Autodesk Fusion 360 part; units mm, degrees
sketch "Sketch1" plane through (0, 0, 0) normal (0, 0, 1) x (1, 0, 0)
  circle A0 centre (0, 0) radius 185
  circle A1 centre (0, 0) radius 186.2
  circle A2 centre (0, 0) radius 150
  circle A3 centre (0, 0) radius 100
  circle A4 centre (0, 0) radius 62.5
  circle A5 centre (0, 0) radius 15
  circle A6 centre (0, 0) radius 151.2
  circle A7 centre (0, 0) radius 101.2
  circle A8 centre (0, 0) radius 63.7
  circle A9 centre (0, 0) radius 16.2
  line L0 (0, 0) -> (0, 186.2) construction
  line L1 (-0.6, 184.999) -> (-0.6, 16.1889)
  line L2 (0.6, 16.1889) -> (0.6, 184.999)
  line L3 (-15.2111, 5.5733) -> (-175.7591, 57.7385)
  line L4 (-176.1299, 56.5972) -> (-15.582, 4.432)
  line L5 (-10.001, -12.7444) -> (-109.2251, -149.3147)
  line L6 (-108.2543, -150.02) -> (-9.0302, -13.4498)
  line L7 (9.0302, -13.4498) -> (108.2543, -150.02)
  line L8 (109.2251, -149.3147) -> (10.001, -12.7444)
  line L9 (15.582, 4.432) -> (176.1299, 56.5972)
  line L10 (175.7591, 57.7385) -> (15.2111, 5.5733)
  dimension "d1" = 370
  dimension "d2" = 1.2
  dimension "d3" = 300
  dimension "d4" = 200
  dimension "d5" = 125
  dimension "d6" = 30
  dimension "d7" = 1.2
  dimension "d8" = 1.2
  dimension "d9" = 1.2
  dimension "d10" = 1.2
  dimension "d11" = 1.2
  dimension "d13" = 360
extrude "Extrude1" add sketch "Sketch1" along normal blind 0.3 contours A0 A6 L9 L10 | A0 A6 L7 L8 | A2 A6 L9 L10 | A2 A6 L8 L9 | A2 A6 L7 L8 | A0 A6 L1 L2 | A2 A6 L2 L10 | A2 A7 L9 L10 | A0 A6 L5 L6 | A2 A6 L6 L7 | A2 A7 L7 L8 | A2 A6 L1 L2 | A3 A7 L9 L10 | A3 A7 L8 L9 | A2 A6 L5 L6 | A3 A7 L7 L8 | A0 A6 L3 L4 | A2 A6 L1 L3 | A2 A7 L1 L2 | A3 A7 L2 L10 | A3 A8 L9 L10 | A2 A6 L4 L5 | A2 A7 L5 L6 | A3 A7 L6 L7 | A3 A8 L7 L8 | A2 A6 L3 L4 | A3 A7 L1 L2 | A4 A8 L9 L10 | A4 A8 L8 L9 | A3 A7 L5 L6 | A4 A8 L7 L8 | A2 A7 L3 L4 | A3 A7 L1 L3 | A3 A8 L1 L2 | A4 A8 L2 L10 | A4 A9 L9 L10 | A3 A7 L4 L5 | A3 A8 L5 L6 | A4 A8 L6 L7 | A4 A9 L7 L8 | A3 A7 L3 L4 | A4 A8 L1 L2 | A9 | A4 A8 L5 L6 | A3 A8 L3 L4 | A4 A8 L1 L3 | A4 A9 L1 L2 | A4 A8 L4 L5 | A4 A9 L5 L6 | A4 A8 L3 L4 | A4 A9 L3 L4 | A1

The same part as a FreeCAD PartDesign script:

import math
import FreeCAD as App
import Part
import Sketcher
from FreeCAD import Vector
Q = App.Units.Quantity

doc = App.newDocument("Part")
body = doc.addObject("PartDesign::Body", "Body")

sketch1 = body.newObject("Sketcher::SketchObject", "Sketch")
sketch1.AttachmentSupport = (doc.getObject("XY_Plane"), [""])
sketch1.MapMode = "FlatFace"
sketch1.addGeometry([
    Part.Circle(Vector(0, 0, 0), Vector(0, 0, 1), 186.2),
    Part.LineSegment(Vector(143.984024, 46.152367, 0), Vector(176.1299, 56.5972, 0)),
    Part.ArcOfCircle(Part.Circle(Vector(0, 0, 0), Vector(0, 0, 1), 185), math.radians(-53.814181), math.radians(17.814177)),
    Part.LineSegment(Vector(109.2251, -149.3147, 0), Vector(89.357831, -121.969742, 0)),
    Part.ArcOfCircle(Part.Circle(Vector(0, 0, 0), Vector(0, 0, 1), 151.2), math.radians(-53.77264), math.radians(17.772635)),
    Part.LineSegment(Vector(175.7591, 57.7385, 0), Vector(143.613194, 47.293663, 0)),
    Part.ArcOfCircle(Part.Circle(Vector(0, 0, 0), Vector(0, 0, 1), 151.2), math.radians(18.227376), math.radians(89.772635)),
    Part.LineSegment(Vector(0.6, 151.19881, 0), Vector(0.6, 184.999, 0)),
    Part.ArcOfCircle(Part.Circle(Vector(0, 0, 0), Vector(0, 0, 1), 185), math.radians(18.185833), math.radians(89.814175)),
    Part.ArcOfCircle(Part.Circle(Vector(0, 0, 0), Vector(0, 0, 1), 185), math.radians(90.185825), math.radians(161.814167)),
    Part.LineSegment(Vector(-0.6, 184.999, 0), Vector(-0.6, 151.19881, 0)),
    Part.ArcOfCircle(Part.Circle(Vector(0, 0, 0), Vector(0, 0, 1), 151.2), math.radians(90.227365), math.radians(161.772624)),
    Part.LineSegment(Vector(-143.613194, 47.293663, 0), Vector(-175.7591, 57.7385, 0)),
    Part.ArcOfCircle(Part.Circle(Vector(0, 0, 0), Vector(0, 0, 1), 185), math.radians(162.185823), math.radians(233.814181)),
    Part.LineSegment(Vector(-176.1299, 56.5972, 0), Vector(-143.984024, 46.152367, 0)),
    Part.ArcOfCircle(Part.Circle(Vector(0, 0, 0), Vector(0, 0, 1), 151.2), math.radians(162.227365), math.radians(233.77264)),
    Part.LineSegment(Vector(-89.357831, -121.969742, 0), Vector(-109.2251, -149.3147, 0)),
    Part.ArcOfCircle(Part.Circle(Vector(0, 0, 0), Vector(0, 0, 1), 185), math.radians(-125.814183), math.radians(-54.185817)),
    Part.LineSegment(Vector(-108.2543, -150.02, 0), Vector(-88.387035, -122.675067, 0)),
    Part.ArcOfCircle(Part.Circle(Vector(0, 0, 0), Vector(0, 0, 1), 151.2), math.radians(-125.772642), math.radians(-54.227358)),
    Part.LineSegment(Vector(88.387035, -122.675067, 0), Vector(108.2543, -150.02, 0)),
    Part.LineSegment(Vector(88.652484, -120.998914, 0), Vector(59.968229, -81.518412, 0)),
    Part.ArcOfCircle(Part.Circle(Vector(0, 0, 0), Vector(0, 0, 1), 101.2), math.radians(-53.660302), math.radians(17.660295)),
    Part.LineSegment(Vector(96.430641, 30.701328, 0), Vector(142.842747, 45.781543, 0)),
    Part.ArcOfCircle(Part.Circle(Vector(0, 0, 0), Vector(0, 0, 1), 150), math.radians(-53.770821), math.radians(17.770816)),
    Part.LineSegment(Vector(142.471917, 46.92284, 0), Vector(96.059808, 31.842634, 0)),
    Part.ArcOfCircle(Part.Circle(Vector(0, 0, 0), Vector(0, 0, 1), 101.2), math.radians(18.339718), math.radians(89.6603)),
    Part.LineSegment(Vector(0.6, 101.198221, 0), Vector(0.6, 149.9988, 0)),
    Part.ArcOfCircle(Part.Circle(Vector(0, 0, 0), Vector(0, 0, 1), 150), math.radians(18.229195), math.radians(89.770816)),
    Part.LineSegment(Vector(58.997418, -82.223747, 0), Vector(87.681687, -121.704239, 0)),
    Part.ArcOfCircle(Part.Circle(Vector(0, 0, 0), Vector(0, 0, 1), 150), math.radians(-125.770823), math.radians(-54.229177)),
    Part.LineSegment(Vector(-87.681687, -121.704239, 0), Vector(-58.997418, -82.223747, 0)),
    Part.ArcOfCircle(Part.Circle(Vector(0, 0, 0), Vector(0, 0, 1), 101.2), math.radians(-125.660304), math.radians(-54.339696)),
    Part.LineSegment(Vector(59.262874, -80.547574, 0), Vector(37.925671, -51.179424, 0)),
    Part.ArcOfCircle(Part.Circle(Vector(0, 0, 0), Vector(0, 0, 1), 63.7), math.radians(-53.460313), math.radians(17.460302)),
    Part.LineSegment(Vector(60.765027, 19.112862, 0), Vector(95.289352, 30.330501, 0)),
    Part.ArcOfCircle(Part.Circle(Vector(0, 0, 0), Vector(0, 0, 1), 100), math.radians(-53.656225), math.radians(17.656218)),
    Part.LineSegment(Vector(94.91852, 31.471807, 0), Vector(60.394192, 20.254174, 0)),
    Part.ArcOfCircle(Part.Circle(Vector(0, 0, 0), Vector(0, 0, 1), 63.7), math.radians(18.539715), math.radians(89.460314)),
    Part.LineSegment(Vector(0.6, 63.697174, 0), Vector(0.6, 99.9982, 0)),
    Part.ArcOfCircle(Part.Circle(Vector(0, 0, 0), Vector(0, 0, 1), 100), math.radians(18.343795), math.radians(89.656223)),
    Part.ArcOfCircle(Part.Circle(Vector(0, 0, 0), Vector(0, 0, 1), 150), math.radians(90.229184), math.radians(161.770805)),
    Part.LineSegment(Vector(-0.6, 149.9988, 0), Vector(-0.6, 101.198221, 0)),
    Part.ArcOfCircle(Part.Circle(Vector(0, 0, 0), Vector(0, 0, 1), 101.2), math.radians(90.3397), math.radians(161.660282)),
    Part.LineSegment(Vector(-96.059808, 31.842634, 0), Vector(-142.471917, 46.92284, 0)),
    Part.LineSegment(Vector(-142.842747, 45.781543, 0), Vector(-96.430641, 30.701328, 0)),
    Part.ArcOfCircle(Part.Circle(Vector(0, 0, 0), Vector(0, 0, 1), 101.2), math.radians(162.339705), math.radians(233.660302)),
    Part.LineSegment(Vector(-59.968229, -81.518412, 0), Vector(-88.652484, -120.998914, 0)),
    Part.ArcOfCircle(Part.Circle(Vector(0, 0, 0), Vector(0, 0, 1), 150), math.radians(162.229184), math.radians(233.770821)),
    Part.LineSegment(Vector(36.95485, -51.884767, 0), Vector(58.292063, -81.25291, 0)),
    Part.ArcOfCircle(Part.Circle(Vector(0, 0, 0), Vector(0, 0, 1), 100), math.radians(-125.656228), math.radians(-54.343772)),
    Part.LineSegment(Vector(-58.292063, -81.25291, 0), Vector(-36.95485, -51.884767, 0)),
    Part.ArcOfCircle(Part.Circle(Vector(0, 0, 0), Vector(0, 0, 1), 63.7), math.radians(-125.460315), math.radians(-54.539685)),
    Part.LineSegment(Vector(37.220297, -50.20856, 0), Vector(10.001, -12.7444, 0)),
    Part.ArcOfCircle(Part.Circle(Vector(0, 0, 0), Vector(0, 0, 1), 16.2), math.radians(-51.877417), math.radians(15.877382)),
    Part.LineSegment(Vector(15.582, 4.432, 0), Vector(59.623707, 18.742025, 0)),
    Part.ArcOfCircle(Part.Circle(Vector(0, 0, 0), Vector(0, 0, 1), 62.5), math.radians(-53.449951), math.radians(17.449939)),
    Part.LineSegment(Vector(59.252872, 19.883337, 0), Vector(15.2111, 5.5733, 0)),
    Part.ArcOfCircle(Part.Circle(Vector(0, 0, 0), Vector(0, 0, 1), 16.2), math.radians(20.122678), math.radians(87.877451)),
    Part.LineSegment(Vector(0.6, 16.1889, 0), Vector(0.6, 62.49712, 0)),
    Part.ArcOfCircle(Part.Circle(Vector(0, 0, 0), Vector(0, 0, 1), 62.5), math.radians(18.550078), math.radians(89.449952)),
    Part.ArcOfCircle(Part.Circle(Vector(0, 0, 0), Vector(0, 0, 1), 100), math.radians(90.343777), math.radians(161.656205)),
    Part.LineSegment(Vector(-0.6, 99.9982, 0), Vector(-0.6, 63.697174, 0)),
    Part.ArcOfCircle(Part.Circle(Vector(0, 0, 0), Vector(0, 0, 1), 63.7), math.radians(90.539686), math.radians(161.460285)),
    Part.LineSegment(Vector(-60.394192, 20.254174, 0), Vector(-94.91852, 31.471807, 0)),
    Part.LineSegment(Vector(-95.289352, 30.330501, 0), Vector(-60.765027, 19.112862, 0)),
    Part.ArcOfCircle(Part.Circle(Vector(0, 0, 0), Vector(0, 0, 1), 63.7), math.radians(162.539698), math.radians(233.460313)),
    Part.LineSegment(Vector(-37.925671, -51.179424, 0), Vector(-59.262874, -80.547574, 0)),
    Part.ArcOfCircle(Part.Circle(Vector(0, 0, 0), Vector(0, 0, 1), 100), math.radians(162.343782), math.radians(233.656225)),
    Part.ArcOfCircle(Part.Circle(Vector(0, 0, 0), Vector(0, 0, 1), 16.2), math.radians(-123.877424), math.radians(-56.122576)),
    Part.LineSegment(Vector(9.0302, -13.4498, 0), Vector(36.249476, -50.913903, 0)),
    Part.ArcOfCircle(Part.Circle(Vector(0, 0, 0), Vector(0, 0, 1), 62.5), math.radians(-125.449952), math.radians(-54.550048)),
    Part.LineSegment(Vector(-36.249476, -50.913903, 0), Vector(-9.0302, -13.4498, 0)),
    Part.ArcOfCircle(Part.Circle(Vector(0, 0, 0), Vector(0, 0, 1), 16.2), math.radians(164.122618), math.radians(231.877417)),
    Part.LineSegment(Vector(-10.001, -12.7444, 0), Vector(-37.220297, -50.20856, 0)),
    Part.ArcOfCircle(Part.Circle(Vector(0, 0, 0), Vector(0, 0, 1), 62.5), math.radians(162.550061), math.radians(233.449951)),
    Part.LineSegment(Vector(-59.623707, 18.742025, 0), Vector(-15.582, 4.432, 0)),
    Part.ArcOfCircle(Part.Circle(Vector(0, 0, 0), Vector(0, 0, 1), 16.2), math.radians(92.122549), math.radians(159.877322)),
    Part.LineSegment(Vector(-15.2111, 5.5733, 0), Vector(-59.252872, 19.883337, 0)),
    Part.ArcOfCircle(Part.Circle(Vector(0, 0, 0), Vector(0, 0, 1), 62.5), math.radians(90.550048), math.radians(161.449922)),
    Part.LineSegment(Vector(-0.6, 62.49712, 0), Vector(-0.6, 16.1889, 0)),
    Part.Circle(Vector(0, 0, 0), Vector(0, 0, 1), 15),
], False)
sketch1.addConstraint([
    Sketcher.Constraint("Coincident", 1, 2, 2, 2),
    Sketcher.Constraint("Coincident", 2, 1, 3, 1),
    Sketcher.Constraint("Coincident", 3, 2, 4, 1),
    Sketcher.Constraint("Coincident", 4, 2, 1, 1),
    Sketcher.Constraint("Coincident", 5, 2, 6, 1),
    Sketcher.Constraint("Coincident", 6, 2, 7, 1),
    Sketcher.Constraint("Coincident", 7, 2, 8, 2),
    Sketcher.Constraint("Coincident", 8, 1, 5, 1),
    Sketcher.Constraint("Coincident", 9, 1, 10, 1),
    Sketcher.Constraint("Coincident", 10, 2, 11, 1),
    Sketcher.Constraint("Coincident", 11, 2, 12, 1),
    Sketcher.Constraint("Coincident", 12, 2, 9, 2),
    Sketcher.Constraint("Coincident", 13, 1, 14, 1),
    Sketcher.Constraint("Coincident", 14, 2, 15, 1),
    Sketcher.Constraint("Coincident", 15, 2, 16, 1),
    Sketcher.Constraint("Coincident", 16, 2, 13, 2),
    Sketcher.Constraint("Coincident", 17, 1, 18, 1),
    Sketcher.Constraint("Coincident", 18, 2, 19, 1),
    Sketcher.Constraint("Coincident", 19, 2, 20, 1),
    Sketcher.Constraint("Coincident", 20, 2, 17, 2),
    Sketcher.Constraint("Coincident", 21, 2, 22, 1),
    Sketcher.Constraint("Coincident", 22, 2, 23, 1),
    Sketcher.Constraint("Coincident", 23, 2, 24, 2),
    Sketcher.Constraint("Coincident", 24, 1, 21, 1),
    Sketcher.Constraint("Coincident", 25, 2, 26, 1),
    Sketcher.Constraint("Coincident", 26, 2, 27, 1),
    Sketcher.Constraint("Coincident", 27, 2, 28, 2),
    Sketcher.Constraint("Coincident", 28, 1, 25, 1),
    Sketcher.Constraint("Coincident", 29, 2, 30, 2),
    Sketcher.Constraint("Coincident", 30, 1, 31, 1),
    Sketcher.Constraint("Coincident", 31, 2, 32, 1),
    Sketcher.Constraint("Coincident", 32, 2, 29, 1),
    Sketcher.Constraint("Coincident", 33, 2, 34, 1),
    Sketcher.Constraint("Coincident", 34, 2, 35, 1),
    Sketcher.Constraint("Coincident", 35, 2, 36, 2),
    Sketcher.Constraint("Coincident", 36, 1, 33, 1),
    Sketcher.Constraint("Coincident", 37, 2, 38, 1),
    Sketcher.Constraint("Coincident", 38, 2, 39, 1),
    Sketcher.Constraint("Coincident", 39, 2, 40, 2),
    Sketcher.Constraint("Coincident", 40, 1, 37, 1),
    Sketcher.Constraint("Coincident", 41, 1, 42, 1),
    Sketcher.Constraint("Coincident", 42, 2, 43, 1),
    Sketcher.Constraint("Coincident", 43, 2, 44, 1),
    Sketcher.Constraint("Coincident", 44, 2, 41, 2),
    Sketcher.Constraint("Coincident", 45, 2, 46, 1),
    Sketcher.Constraint("Coincident", 46, 2, 47, 1),
    Sketcher.Constraint("Coincident", 47, 2, 48, 2),
    Sketcher.Constraint("Coincident", 48, 1, 45, 1),
    Sketcher.Constraint("Coincident", 49, 2, 50, 2),
    Sketcher.Constraint("Coincident", 50, 1, 51, 1),
    Sketcher.Constraint("Coincident", 51, 2, 52, 1),
    Sketcher.Constraint("Coincident", 52, 2, 49, 1),
    Sketcher.Constraint("Coincident", 53, 2, 54, 1),
    Sketcher.Constraint("Coincident", 54, 2, 55, 1),
    Sketcher.Constraint("Coincident", 55, 2, 56, 2),
    Sketcher.Constraint("Coincident", 56, 1, 53, 1),
    Sketcher.Constraint("Coincident", 57, 2, 58, 1),
    Sketcher.Constraint("Coincident", 58, 2, 59, 1),
    Sketcher.Constraint("Coincident", 59, 2, 60, 2),
    Sketcher.Constraint("Coincident", 60, 1, 57, 1),
    Sketcher.Constraint("Coincident", 61, 1, 62, 1),
    Sketcher.Constraint("Coincident", 62, 2, 63, 1),
    Sketcher.Constraint("Coincident", 63, 2, 64, 1),
    Sketcher.Constraint("Coincident", 64, 2, 61, 2),
    Sketcher.Constraint("Coincident", 65, 2, 66, 1),
    Sketcher.Constraint("Coincident", 66, 2, 67, 1),
    Sketcher.Constraint("Coincident", 67, 2, 68, 2),
    Sketcher.Constraint("Coincident", 68, 1, 65, 1),
    Sketcher.Constraint("Coincident", 69, 2, 70, 1),
    Sketcher.Constraint("Coincident", 70, 2, 71, 2),
    Sketcher.Constraint("Coincident", 71, 1, 72, 1),
    Sketcher.Constraint("Coincident", 72, 2, 69, 1),
    Sketcher.Constraint("Coincident", 73, 2, 74, 1),
    Sketcher.Constraint("Coincident", 74, 2, 75, 2),
    Sketcher.Constraint("Coincident", 75, 1, 76, 1),
    Sketcher.Constraint("Coincident", 76, 2, 73, 1),
    Sketcher.Constraint("Coincident", 77, 2, 78, 1),
    Sketcher.Constraint("Coincident", 78, 2, 79, 2),
    Sketcher.Constraint("Coincident", 79, 1, 80, 1),
    Sketcher.Constraint("Coincident", 80, 2, 77, 1),
    Sketcher.Constraint("Vertical", 7),
    Sketcher.Constraint("Vertical", 10),
    Sketcher.Constraint("Vertical", 27),
    Sketcher.Constraint("Vertical", 39),
    Sketcher.Constraint("Vertical", 42),
    Sketcher.Constraint("Vertical", 59),
    Sketcher.Constraint("Vertical", 62),
    Sketcher.Constraint("Vertical", 80),
    Sketcher.Constraint("Coincident", 0, 3, -1, 1),
    Sketcher.Constraint("Coincident", 2, 3, -1, 1),
    Sketcher.Constraint("Coincident", 4, 3, -1, 1),
    Sketcher.Constraint("Coincident", 6, 3, -1, 1),
    Sketcher.Constraint("Coincident", 8, 3, -1, 1),
    Sketcher.Constraint("Coincident", 9, 3, -1, 1),
    Sketcher.Constraint("Coincident", 11, 3, -1, 1),
    Sketcher.Constraint("Coincident", 13, 3, -1, 1),
    Sketcher.Constraint("Coincident", 15, 3, -1, 1),
    Sketcher.Constraint("Coincident", 17, 3, -1, 1),
    Sketcher.Constraint("Coincident", 19, 3, -1, 1),
    Sketcher.Constraint("Coincident", 22, 3, -1, 1),
    Sketcher.Constraint("Coincident", 24, 3, -1, 1),
    Sketcher.Constraint("Coincident", 26, 3, -1, 1),
    Sketcher.Constraint("Coincident", 28, 3, -1, 1),
    Sketcher.Constraint("Coincident", 30, 3, -1, 1),
    Sketcher.Constraint("Coincident", 32, 3, -1, 1),
    Sketcher.Constraint("Coincident", 34, 3, -1, 1),
    Sketcher.Constraint("Coincident", 36, 3, -1, 1),
    Sketcher.Constraint("Coincident", 38, 3, -1, 1),
    Sketcher.Constraint("Coincident", 40, 3, -1, 1),
    Sketcher.Constraint("Coincident", 41, 3, -1, 1),
    Sketcher.Constraint("Coincident", 43, 3, -1, 1),
    Sketcher.Constraint("Coincident", 46, 3, -1, 1),
    Sketcher.Constraint("Coincident", 48, 3, -1, 1),
    Sketcher.Constraint("Coincident", 50, 3, -1, 1),
    Sketcher.Constraint("Coincident", 52, 3, -1, 1),
    Sketcher.Constraint("Coincident", 54, 3, -1, 1),
    Sketcher.Constraint("Coincident", 56, 3, -1, 1),
    Sketcher.Constraint("Coincident", 58, 3, -1, 1),
    Sketcher.Constraint("Coincident", 60, 3, -1, 1),
    Sketcher.Constraint("Coincident", 61, 3, -1, 1),
    Sketcher.Constraint("Coincident", 63, 3, -1, 1),
    Sketcher.Constraint("Coincident", 66, 3, -1, 1),
    Sketcher.Constraint("Coincident", 68, 3, -1, 1),
    Sketcher.Constraint("Coincident", 69, 3, -1, 1),
    Sketcher.Constraint("Coincident", 71, 3, -1, 1),
    Sketcher.Constraint("Coincident", 73, 3, -1, 1),
    Sketcher.Constraint("Coincident", 75, 3, -1, 1),
    Sketcher.Constraint("Coincident", 77, 3, -1, 1),
    Sketcher.Constraint("Coincident", 79, 3, -1, 1),
    Sketcher.Constraint("Coincident", 81, 3, -1, 1),
    Sketcher.Constraint("Equal", 4, 6),
    Sketcher.Constraint("Equal", 2, 8),
    Sketcher.Constraint("Equal", 8, 9),
    Sketcher.Constraint("Equal", 6, 11),
    Sketcher.Constraint("Equal", 9, 13),
    Sketcher.Constraint("Equal", 11, 15),
    Sketcher.Constraint("Equal", 13, 17),
    Sketcher.Constraint("Equal", 15, 19),
    Sketcher.Constraint("Equal", 22, 26),
    Sketcher.Constraint("Equal", 24, 28),
    Sketcher.Constraint("Equal", 28, 30),
    Sketcher.Constraint("Equal", 26, 32),
    Sketcher.Constraint("Equal", 34, 38),
    Sketcher.Constraint("Equal", 36, 40),
    Sketcher.Constraint("Equal", 30, 41),
    Sketcher.Constraint("Equal", 32, 43),
    Sketcher.Constraint("Equal", 43, 46),
    Sketcher.Constraint("Equal", 41, 48),
    Sketcher.Constraint("Equal", 40, 50),
    Sketcher.Constraint("Equal", 38, 52),
    Sketcher.Constraint("Equal", 54, 58),
    Sketcher.Constraint("Equal", 56, 60),
    Sketcher.Constraint("Equal", 50, 61),
    Sketcher.Constraint("Equal", 52, 63),
    Sketcher.Constraint("Equal", 63, 66),
    Sketcher.Constraint("Equal", 61, 68),
    Sketcher.Constraint("Equal", 58, 69),
    Sketcher.Constraint("Equal", 60, 71),
    Sketcher.Constraint("Equal", 69, 73),
    Sketcher.Constraint("Equal", 71, 75),
    Sketcher.Constraint("Equal", 73, 77),
    Sketcher.Constraint("Equal", 75, 79),
    Sketcher.Constraint("Parallel", 1, 5),
    Sketcher.Constraint("Parallel", 12, 14),
    Sketcher.Constraint("Parallel", 16, 18),
    Sketcher.Constraint("Parallel", 3, 20),
    Sketcher.Constraint("Parallel", 20, 21),
    Sketcher.Constraint("Parallel", 5, 23),
    Sketcher.Constraint("Parallel", 23, 25),
    Sketcher.Constraint("Parallel", 21, 29),
    Sketcher.Constraint("Parallel", 18, 31),
    Sketcher.Constraint("Parallel", 29, 33),
    Sketcher.Constraint("Parallel", 25, 35),
    Sketcher.Constraint("Parallel", 35, 37),
    Sketcher.Constraint("Parallel", 14, 44),
    Sketcher.Constraint("Parallel", 44, 45),
    Sketcher.Constraint("Parallel", 31, 47),
    Sketcher.Constraint("Parallel", 33, 49),
    Sketcher.Constraint("Parallel", 47, 51),
    Sketcher.Constraint("Parallel", 49, 53),
    Sketcher.Constraint("Parallel", 37, 55),
    Sketcher.Constraint("Parallel", 55, 57),
    Sketcher.Constraint("Parallel", 45, 64),
    Sketcher.Constraint("Parallel", 64, 65),
    Sketcher.Constraint("Parallel", 51, 67),
    Sketcher.Constraint("Parallel", 53, 70),
    Sketcher.Constraint("Parallel", 67, 72),
    Sketcher.Constraint("Parallel", 72, 74),
    Sketcher.Constraint("Parallel", 65, 76),
    Sketcher.Constraint("Parallel", 76, 78),
    Sketcher.Constraint("Horizontal", 6, 2, 10, 2),
    Sketcher.Constraint("Horizontal", 5, 2, 11, 2),
    Sketcher.Constraint("Horizontal", 8, 1, 12, 2),
    Sketcher.Constraint("Horizontal", 1, 2, 13, 1),
    Sketcher.Constraint("Horizontal", 3, 2, 15, 2),
    Sketcher.Constraint("Horizontal", 2, 1, 16, 2),
    Sketcher.Constraint("Horizontal", 18, 2, 19, 2),
    Sketcher.Constraint("Horizontal", 29, 2, 30, 1),
    Sketcher.Constraint("Horizontal", 27, 2, 41, 1),
    Sketcher.Constraint("Horizontal", 25, 2, 43, 2),
    Sketcher.Constraint("Horizontal", 22, 2, 45, 2),
    Sketcher.Constraint("Horizontal", 21, 2, 46, 2),
    Sketcher.Constraint("Horizontal", 49, 2, 50, 1),
    Sketcher.Constraint("Horizontal", 39, 2, 61, 1),
    Sketcher.Constraint("Horizontal", 37, 2, 63, 2),
    Sketcher.Constraint("Horizontal", 34, 2, 65, 2),
    Sketcher.Constraint("Horizontal", 33, 2, 66, 2),
    Sketcher.Constraint("Horizontal", 70, 2, 71, 1),
    Sketcher.Constraint("Horizontal", 53, 2, 73, 2),
    Sketcher.Constraint("Horizontal", 55, 2, 75, 1),
    Sketcher.Constraint("Horizontal", 57, 2, 77, 2),
    Sketcher.Constraint("Horizontal", 59, 2, 79, 1),
    Sketcher.Constraint("Vertical", 7, 2, 26, 2),
    Sketcher.Constraint("Vertical", 27, 2, 38, 2),
    Sketcher.Constraint("Vertical", 39, 2, 58, 2),
    Sketcher.Constraint("Equal", 23, 25),
    Sketcher.Constraint("Equal", 21, 29),
    Sketcher.Constraint("Equal", 53, 55),
    Sketcher.Constraint("Equal", 55, 57),
    Sketcher.Constraint("Equal", 57, 70),
    Sketcher.Constraint("Diameter", 81, Q("30 mm")),
    Sketcher.Constraint("Radius", 2, Q("185 mm")),
    Sketcher.Constraint("Radius", 24, Q("150 mm")),
    Sketcher.Constraint("Radius", 36, Q("100 mm")),
    Sketcher.Constraint("Radius", 56, Q("62.5 mm")),
    Sketcher.Constraint("Diameter", 0, Q("372.4 mm")),
    Sketcher.Constraint("Radius", 4, Q("151.2 mm")),
    Sketcher.Constraint("Radius", 22, Q("101.2 mm")),
    Sketcher.Constraint("Radius", 34, Q("63.7 mm")),
    Sketcher.Constraint("Radius", 54, Q("16.2 mm")),
    Sketcher.Constraint("Angle", 1, Q("18 deg")),
    Sketcher.Constraint("Angle", 3, Q("126 deg")),
    Sketcher.Constraint("DistanceX", -1, 1, 7, 2, Q("0.6 mm")),
    Sketcher.Constraint("DistanceX", -1, 1, 1, 2, Q("176.13 mm")),
    Sketcher.Constraint("DistanceY", 17, 1, -1, 1, Q("150.02 mm")),
    Sketcher.Constraint("DistanceX", -1, 1, 2, 1, Q("109.225 mm")),
    Sketcher.Constraint("DistanceX", -1, 1, 8, 1, Q("175.759 mm")),
    Sketcher.Constraint("DistanceY", 24, 1, -1, 1, Q("120.999 mm")),
    Sketcher.Constraint("DistanceX", -1, 1, 28, 1, Q("142.472 mm")),
    Sketcher.Constraint("DistanceX", -1, 1, 34, 2, Q("60.765 mm")),
    Sketcher.Constraint("DistanceX", -1, 1, 49, 2, Q("58.292 mm")),
    Sketcher.Constraint("DistanceX", -1, 1, 53, 2, Q("10.001 mm")),
    Sketcher.Constraint("DistanceX", -1, 1, 33, 2, Q("37.9257 mm")),
    Sketcher.Constraint("DistanceX", -1, 1, 37, 2, Q("60.3942 mm")),
])
pad1 = body.newObject("PartDesign::Pad", "Pad")
pad1.Profile = sketch1
pad1.Length = 0.3

doc.recompute()
